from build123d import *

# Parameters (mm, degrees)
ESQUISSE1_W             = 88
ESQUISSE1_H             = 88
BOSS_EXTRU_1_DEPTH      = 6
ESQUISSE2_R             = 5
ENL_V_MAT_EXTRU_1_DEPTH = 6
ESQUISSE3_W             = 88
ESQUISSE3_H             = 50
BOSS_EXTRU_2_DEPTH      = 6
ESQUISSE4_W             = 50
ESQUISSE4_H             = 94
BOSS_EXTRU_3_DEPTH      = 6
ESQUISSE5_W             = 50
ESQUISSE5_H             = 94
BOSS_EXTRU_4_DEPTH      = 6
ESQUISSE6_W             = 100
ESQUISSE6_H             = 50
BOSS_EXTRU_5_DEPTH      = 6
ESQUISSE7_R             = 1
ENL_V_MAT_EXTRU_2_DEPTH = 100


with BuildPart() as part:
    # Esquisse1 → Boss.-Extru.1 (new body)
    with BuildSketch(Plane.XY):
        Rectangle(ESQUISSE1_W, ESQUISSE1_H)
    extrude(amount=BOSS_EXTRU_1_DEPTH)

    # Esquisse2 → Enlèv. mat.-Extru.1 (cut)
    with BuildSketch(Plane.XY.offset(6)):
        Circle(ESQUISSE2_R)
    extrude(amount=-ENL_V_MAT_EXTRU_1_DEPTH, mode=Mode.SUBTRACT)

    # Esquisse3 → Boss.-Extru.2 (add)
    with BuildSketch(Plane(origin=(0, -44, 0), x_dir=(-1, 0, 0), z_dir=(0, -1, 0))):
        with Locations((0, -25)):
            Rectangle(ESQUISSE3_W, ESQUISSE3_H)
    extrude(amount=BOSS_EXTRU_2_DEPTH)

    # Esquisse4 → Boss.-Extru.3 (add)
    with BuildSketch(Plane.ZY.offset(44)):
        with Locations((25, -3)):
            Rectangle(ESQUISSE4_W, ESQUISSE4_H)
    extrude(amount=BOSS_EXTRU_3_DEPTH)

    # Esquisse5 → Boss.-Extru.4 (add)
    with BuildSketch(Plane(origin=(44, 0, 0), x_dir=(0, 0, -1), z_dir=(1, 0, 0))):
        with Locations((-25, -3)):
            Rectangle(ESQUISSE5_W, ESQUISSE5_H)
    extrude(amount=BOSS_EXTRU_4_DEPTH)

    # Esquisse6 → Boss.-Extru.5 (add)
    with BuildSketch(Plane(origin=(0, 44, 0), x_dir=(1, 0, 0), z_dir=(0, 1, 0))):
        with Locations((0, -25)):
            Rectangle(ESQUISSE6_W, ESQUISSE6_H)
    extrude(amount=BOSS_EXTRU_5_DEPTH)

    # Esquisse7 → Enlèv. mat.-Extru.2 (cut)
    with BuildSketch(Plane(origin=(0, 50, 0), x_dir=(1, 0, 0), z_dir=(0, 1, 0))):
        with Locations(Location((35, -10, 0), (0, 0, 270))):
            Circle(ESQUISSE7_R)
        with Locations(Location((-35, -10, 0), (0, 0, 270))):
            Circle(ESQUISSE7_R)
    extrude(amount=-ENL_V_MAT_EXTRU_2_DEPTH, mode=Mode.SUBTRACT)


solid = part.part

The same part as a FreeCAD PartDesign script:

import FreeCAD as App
import Part
import Sketcher
from FreeCAD import Vector
Q = App.Units.Quantity

doc = App.newDocument("Part")
body = doc.addObject("PartDesign::Body", "Body")

# Sketch on XY plane
sketch1 = body.newObject("Sketcher::SketchObject", "Sketch")
sketch1.AttachmentSupport = (doc.getObject("XY_Plane"), [""])
sketch1.MapMode = "FlatFace"
sketch1.addGeometry([
    Part.LineSegment(Vector(-44, 44, 0), Vector(-44, -44, 0)),
    Part.LineSegment(Vector(-44, -44, 0), Vector(44, -44, 0)),
    Part.LineSegment(Vector(44, -44, 0), Vector(44, 44, 0)),
    Part.LineSegment(Vector(44, 44, 0), Vector(-44, 44, 0)),
], False)
sketch1.addConstraint([
    Sketcher.Constraint("Coincident", 0, 2, 1, 1),
    Sketcher.Constraint("Coincident", 1, 2, 2, 1),
    Sketcher.Constraint("Coincident", 2, 2, 3, 1),
    Sketcher.Constraint("Coincident", 3, 2, 0, 1),
    Sketcher.Constraint("Vertical", 0),
    Sketcher.Constraint("Horizontal", 1),
    Sketcher.Constraint("Vertical", 2),
    Sketcher.Constraint("Horizontal", 3),
    Sketcher.Constraint("Symmetric", 0, 2, 2, 2, -1, 1),
    Sketcher.Constraint("Equal", 3, 0),
    Sketcher.Constraint("DistanceX", 1, 1, 1, 2, Q("88 mm")),
])
pad1 = body.newObject("PartDesign::Pad", "Pad")
pad1.Profile = sketch1
pad1.Length = 6

# Sketch on XY plane
sketch2 = body.newObject("Sketcher::SketchObject", "Sketch001")
sketch2.AttachmentSupport = (doc.getObject("XY_Plane"), [""])
sketch2.MapMode = "FlatFace"
sketch2.AttachmentOffset = App.Placement(Vector(0, 0, 6), App.Rotation())
sketch2.addGeometry(Part.Circle(Vector(0, 0, 0), Vector(0, 0, 1), 5), False)
sketch2.addConstraint([
    Sketcher.Constraint("Coincident", 0, 3, -1, 1),
    Sketcher.Constraint("Diameter", 0, Q("10 mm")),
])
pocket1 = body.newObject("PartDesign::Pocket", "Pocket")
pocket1.Profile = sketch2
pocket1.Length = 6

# Sketch on XZ plane
sketch3 = body.newObject("Sketcher::SketchObject", "Sketch002")
sketch3.AttachmentSupport = (doc.getObject("XZ_Plane"), [""])
sketch3.MapMode = "FlatFace"
sketch3.AttachmentOffset = App.Placement(Vector(0, 0, 44), App.Rotation())
sketch3.addGeometry([
    Part.LineSegment(Vector(44, 0, 0), Vector(44, 50, 0)),
    Part.LineSegment(Vector(44, 50, 0), Vector(-44, 50, 0)),
    Part.LineSegment(Vector(-44, 50, 0), Vector(-44, 0, 0)),
    Part.LineSegment(Vector(-44, 0, 0), Vector(44, 0, 0)),
], False)
sketch3.addConstraint([
    Sketcher.Constraint("Coincident", 0, 2, 1, 1),
    Sketcher.Constraint("Coincident", 1, 2, 2, 1),
    Sketcher.Constraint("Coincident", 2, 2, 3, 1),
    Sketcher.Constraint("Coincident", 3, 2, 0, 1),
    Sketcher.Constraint("Vertical", 0),
    Sketcher.Constraint("Horizontal", 1),
    Sketcher.Constraint("Vertical", 2),
    Sketcher.Constraint("Horizontal", 3),
    Sketcher.Constraint("Symmetric", 2, 2, 3, 2, -1, 1),
    Sketcher.Constraint("DistanceX", 1, 2, 1, 1, Q("88 mm")),
    Sketcher.Constraint("DistanceY", 0, 1, 0, 2, Q("50 mm")),
])
pad2 = body.newObject("PartDesign::Pad", "Pad001")
pad2.Profile = sketch3
pad2.Length = 6

# Sketch on YZ plane
sketch4 = body.newObject("Sketcher::SketchObject", "Sketch003")
sketch4.AttachmentSupport = (doc.getObject("YZ_Plane"), [""])
sketch4.MapMode = "FlatFace"
sketch4.AttachmentOffset = App.Placement(Vector(0, 0, -44), App.Rotation())
sketch4.addGeometry([
    Part.LineSegment(Vector(44, 0, 0), Vector(-50, 0, 0)),
    Part.LineSegment(Vector(-50, 0, 0), Vector(-50, 50, 0)),
    Part.LineSegment(Vector(-50, 50, 0), Vector(44, 50, 0)),
    Part.LineSegment(Vector(44, 50, 0), Vector(44, 0, 0)),
], False)
sketch4.addConstraint([
    Sketcher.Constraint("Coincident", 0, 2, 1, 1),
    Sketcher.Constraint("Coincident", 1, 2, 2, 1),
    Sketcher.Constraint("Coincident", 2, 2, 3, 1),
    Sketcher.Constraint("Coincident", 3, 2, 0, 1),
    Sketcher.Constraint("Horizontal", 0),
    Sketcher.Constraint("Vertical", 1),
    Sketcher.Constraint("Horizontal", 2),
    Sketcher.Constraint("Vertical", 3),
    Sketcher.Constraint("PointOnObject", 0, 2, -1),
    Sketcher.Constraint("DistanceX", 0, 2, 0, 1, Q("94 mm")),
    Sketcher.Constraint("DistanceY", 1, 1, 1, 2, Q("50 mm")),
    Sketcher.Constraint("DistanceX", 0, 2, -1, 1, Q("50 mm")),
])
pad3 = body.newObject("PartDesign::Pad", "Pad002")
pad3.Profile = sketch4
pad3.Length = 6
pad3.Reversed = True

# Sketch on YZ plane
sketch5 = body.newObject("Sketcher::SketchObject", "Sketch004")
sketch5.AttachmentSupport = (doc.getObject("YZ_Plane"), [""])
sketch5.MapMode = "FlatFace"
sketch5.AttachmentOffset = App.Placement(Vector(0, 0, 44), App.Rotation())
sketch5.addGeometry([
    Part.LineSegment(Vector(44, 50, 0), Vector(-50, 50, 0)),
    Part.LineSegment(Vector(-50, 50, 0), Vector(-50, 0, 0)),
    Part.LineSegment(Vector(-50, 0, 0), Vector(44, 0, 0)),
    Part.LineSegment(Vector(44, 0, 0), Vector(44, 50, 0)),
], False)
sketch5.addConstraint([
    Sketcher.Constraint("Coincident", 0, 2, 1, 1),
    Sketcher.Constraint("Coincident", 1, 2, 2, 1),
    Sketcher.Constraint("Coincident", 2, 2, 3, 1),
    Sketcher.Constraint("Coincident", 3, 2, 0, 1),
    Sketcher.Constraint("Horizontal", 0),
    Sketcher.Constraint("Vertical", 1),
    Sketcher.Constraint("Horizontal", 2),
    Sketcher.Constraint("Vertical", 3),
    Sketcher.Constraint("PointOnObject", 1, 2, -1),
    Sketcher.Constraint("DistanceX", 0, 2, 0, 1, Q("94 mm")),
    Sketcher.Constraint("DistanceY", 1, 2, 1, 1, Q("50 mm")),
    Sketcher.Constraint("DistanceX", 0, 2, -1, 1, Q("50 mm")),
])
pad4 = body.newObject("PartDesign::Pad", "Pad003")
pad4.Profile = sketch5
pad4.Length = 6

# Sketch on XZ plane
sketch6 = body.newObject("Sketcher::SketchObject", "Sketch005")
sketch6.AttachmentSupport = (doc.getObject("XZ_Plane"), [""])
sketch6.MapMode = "FlatFace"
sketch6.AttachmentOffset = App.Placement(Vector(0, 0, -44), App.Rotation())
sketch6.addGeometry([
    Part.LineSegment(Vector(-50, 0, 0), Vector(-50, 50, 0)),
    Part.LineSegment(Vector(-50, 50, 0), Vector(50, 50, 0)),
    Part.LineSegment(Vector(50, 50, 0), Vector(50, 0, 0)),
    Part.LineSegment(Vector(50, 0, 0), Vector(-50, 0, 0)),
], False)
sketch6.addConstraint([
    Sketcher.Constraint("Coincident", 0, 2, 1, 1),
    Sketcher.Constraint("Coincident", 1, 2, 2, 1),
    Sketcher.Constraint("Coincident", 2, 2, 3, 1),
    Sketcher.Constraint("Coincident", 3, 2, 0, 1),
    Sketcher.Constraint("Vertical", 0),
    Sketcher.Constraint("Horizontal", 1),
    Sketcher.Constraint("Vertical", 2),
    Sketcher.Constraint("Horizontal", 3),
    Sketcher.Constraint("Symmetric", 2, 2, 3, 2, -1, 1),
    Sketcher.Constraint("DistanceX", 1, 1, 1, 2, Q("100 mm")),
    Sketcher.Constraint("DistanceY", 0, 1, 0, 2, Q("50 mm")),
])
pad5 = body.newObject("PartDesign::Pad", "Pad004")
pad5.Profile = sketch6
pad5.Length = 6
pad5.Reversed = True

# Sketch on XZ plane
sketch7 = body.newObject("Sketcher::SketchObject", "Sketch006")
sketch7.AttachmentSupport = (doc.getObject("XZ_Plane"), [""])
sketch7.MapMode = "FlatFace"
sketch7.AttachmentOffset = App.Placement(Vector(0, 0, -50), App.Rotation())
sketch7.addGeometry([
    Part.Circle(Vector(35, 10, 0), Vector(0, 0, 1), 1),
    Part.Circle(Vector(-35, 10, 0), Vector(0, 0, 1), 1),
], False)
sketch7.addConstraint([
    Sketcher.Constraint("Equal", 0, 1),
    Sketcher.Constraint("Symmetric", 0, 3, 1, 3, -2),
    Sketcher.Constraint("Diameter", 0, Q("2 mm")),
    Sketcher.Constraint("DistanceX", -1, 1, 0, 3, Q("35 mm")),
    Sketcher.Constraint("DistanceY", -1, 1, 0, 3, Q("10 mm")),
])
pocket2 = body.newObject("PartDesign::Pocket", "Pocket001")
pocket2.Profile = sketch7
pocket2.Length = 100
pocket2.Reversed = True

doc.recompute()
